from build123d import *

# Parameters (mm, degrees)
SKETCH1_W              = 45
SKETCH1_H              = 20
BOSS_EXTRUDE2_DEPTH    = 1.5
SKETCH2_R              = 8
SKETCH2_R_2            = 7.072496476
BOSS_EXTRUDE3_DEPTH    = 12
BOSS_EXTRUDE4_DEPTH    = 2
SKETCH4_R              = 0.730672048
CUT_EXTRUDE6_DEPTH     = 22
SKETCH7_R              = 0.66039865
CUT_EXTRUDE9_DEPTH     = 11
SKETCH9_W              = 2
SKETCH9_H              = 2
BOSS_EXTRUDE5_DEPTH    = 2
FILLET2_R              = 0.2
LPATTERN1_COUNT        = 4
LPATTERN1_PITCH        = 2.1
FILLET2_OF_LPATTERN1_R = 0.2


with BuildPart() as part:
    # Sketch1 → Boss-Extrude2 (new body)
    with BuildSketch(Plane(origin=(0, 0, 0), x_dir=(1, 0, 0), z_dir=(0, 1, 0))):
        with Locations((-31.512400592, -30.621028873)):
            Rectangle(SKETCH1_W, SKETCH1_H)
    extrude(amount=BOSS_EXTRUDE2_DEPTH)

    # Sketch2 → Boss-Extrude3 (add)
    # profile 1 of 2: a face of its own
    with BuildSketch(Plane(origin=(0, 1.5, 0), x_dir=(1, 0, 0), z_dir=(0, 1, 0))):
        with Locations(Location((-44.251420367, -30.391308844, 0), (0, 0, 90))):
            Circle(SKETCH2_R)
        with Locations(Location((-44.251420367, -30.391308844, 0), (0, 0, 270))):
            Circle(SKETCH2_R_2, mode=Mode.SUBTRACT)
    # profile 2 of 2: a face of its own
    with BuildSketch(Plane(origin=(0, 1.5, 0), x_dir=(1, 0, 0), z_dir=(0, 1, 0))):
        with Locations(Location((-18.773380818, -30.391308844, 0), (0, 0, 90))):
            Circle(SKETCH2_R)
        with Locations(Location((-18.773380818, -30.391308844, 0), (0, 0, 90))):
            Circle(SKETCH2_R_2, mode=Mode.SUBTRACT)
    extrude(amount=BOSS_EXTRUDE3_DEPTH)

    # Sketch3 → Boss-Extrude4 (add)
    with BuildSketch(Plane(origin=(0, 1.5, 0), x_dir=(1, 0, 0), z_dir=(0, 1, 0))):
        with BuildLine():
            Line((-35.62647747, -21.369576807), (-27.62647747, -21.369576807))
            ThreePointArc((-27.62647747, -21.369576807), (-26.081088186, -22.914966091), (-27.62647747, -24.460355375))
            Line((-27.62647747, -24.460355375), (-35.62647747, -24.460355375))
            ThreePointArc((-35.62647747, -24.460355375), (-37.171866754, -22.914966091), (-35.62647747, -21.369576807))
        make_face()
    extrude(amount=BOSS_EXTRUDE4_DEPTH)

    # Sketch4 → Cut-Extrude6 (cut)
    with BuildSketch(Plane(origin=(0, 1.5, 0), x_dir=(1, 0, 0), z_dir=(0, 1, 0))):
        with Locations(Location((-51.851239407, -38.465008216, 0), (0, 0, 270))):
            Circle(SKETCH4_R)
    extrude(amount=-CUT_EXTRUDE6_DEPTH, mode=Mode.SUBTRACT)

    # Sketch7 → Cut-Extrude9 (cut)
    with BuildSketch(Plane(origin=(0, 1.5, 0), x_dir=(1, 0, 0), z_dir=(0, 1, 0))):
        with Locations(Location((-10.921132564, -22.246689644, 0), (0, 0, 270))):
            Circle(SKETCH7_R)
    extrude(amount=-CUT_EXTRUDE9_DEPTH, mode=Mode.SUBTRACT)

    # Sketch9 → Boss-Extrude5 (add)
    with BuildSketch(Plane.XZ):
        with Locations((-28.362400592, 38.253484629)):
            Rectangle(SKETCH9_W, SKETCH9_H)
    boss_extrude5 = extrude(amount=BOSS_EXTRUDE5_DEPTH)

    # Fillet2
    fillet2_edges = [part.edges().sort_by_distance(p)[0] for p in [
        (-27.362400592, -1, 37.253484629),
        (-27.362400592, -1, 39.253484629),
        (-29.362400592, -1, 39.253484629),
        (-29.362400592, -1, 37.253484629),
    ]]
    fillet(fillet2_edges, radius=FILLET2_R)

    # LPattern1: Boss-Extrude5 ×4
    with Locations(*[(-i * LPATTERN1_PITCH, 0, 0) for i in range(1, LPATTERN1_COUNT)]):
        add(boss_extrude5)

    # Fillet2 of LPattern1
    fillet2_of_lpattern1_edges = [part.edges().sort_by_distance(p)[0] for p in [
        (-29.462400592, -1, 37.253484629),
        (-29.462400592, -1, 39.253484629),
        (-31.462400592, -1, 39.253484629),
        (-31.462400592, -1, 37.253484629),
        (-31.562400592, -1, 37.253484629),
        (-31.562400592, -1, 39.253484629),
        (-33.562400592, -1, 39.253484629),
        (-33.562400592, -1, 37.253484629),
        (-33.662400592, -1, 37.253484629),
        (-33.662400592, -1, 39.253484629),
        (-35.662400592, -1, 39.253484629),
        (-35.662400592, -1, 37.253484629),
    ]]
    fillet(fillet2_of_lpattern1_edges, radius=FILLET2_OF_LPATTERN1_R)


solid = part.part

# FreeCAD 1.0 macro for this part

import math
import FreeCAD as App
import Part
import Sketcher
Q = App.Units.Quantity


def edges_at(feature, points):
    """Names of the edges that pass closest to the given points."""
    edges = feature.Shape.Edges
    near = lambda p: min(range(len(edges)), key=lambda i: edges[i].distToShape(Part.Vertex(*p))[0])
    return sorted({f"Edge{near(p) + 1}" for p in points})


def add_polygon(sketch, points):
    """Adds a closed chain of lines whose ends are joined by coincident constraints."""
    first, n = sketch.GeometryCount, len(points)
    for a, b in zip(points, points[1:] + points[:1]):
        sketch.addGeometry(Part.LineSegment(App.Vector(*a, 0), App.Vector(*b, 0)), False)
    for i in range(n):
        sketch.addConstraint(Sketcher.Constraint("Coincident", first + i, 2, first + (i + 1) % n, 1))

doc = App.newDocument("Part")
params = doc.addObject("Spreadsheet::Sheet", "Params")
for row, (alias, value) in enumerate([
    ("sketch1_width", "45 mm"),
    ("sketch1_height", "20 mm"),
    ("pad1_length", "1.5 mm"),
    ("sketch2_diameter", "16 mm"),
    ("pad2_length", "12 mm"),
    ("sketch3_width", "8 mm"),
    ("pad3_length", "2 mm"),
    ("pocket1_length", "22 mm"),
    ("pocket2_length", "11 mm"),
    ("sketch6_width", "2 mm"),
    ("pad4_length", "2 mm"),
    ("fillet_radius", "0.2 mm"),
    ("linearpattern_pitch", "2.1 mm"),
    ("fillet2_radius", "0.2 mm"),
], start=1):
    params.set(f"A{row}", alias)
    params.set(f"B{row}", "=" + value)
    params.setAlias(f"B{row}", alias)

body = doc.addObject("PartDesign::Body", "Body")

# Sketch on XZ plane
sketch1 = body.newObject("Sketcher::SketchObject", "Sketch")
sketch1.AttachmentSupport = (doc.getObject("XZ_Plane"), [""])
sketch1.MapMode = "FlatFace"
add_polygon(sketch1, [(-54, 21), (-54, 41), (-9, 41), (-9, 21)])  # lines 0-3
sketch1.addConstraint([
    Sketcher.Constraint("Vertical", 0),
    Sketcher.Constraint("Horizontal", 1),
    Sketcher.Constraint("Vertical", 2),
    Sketcher.Constraint("Horizontal", 3),
    Sketcher.Constraint("DistanceX", 1, 1, 1, 2, Q("45 mm")),
    Sketcher.Constraint("DistanceY", 0, 1, 0, 2, Q("20 mm")),
    Sketcher.Constraint("DistanceX", 0, 2, -1, 1, Q("54.012401 mm")),
    Sketcher.Constraint("DistanceY", -1, 1, 0, 2, Q("40.621029 mm")),
])
sketch1.setExpression("Constraints[8]", "Params.sketch1_width")
sketch1.setExpression("Constraints[9]", "Params.sketch1_height")
pad1 = body.newObject("PartDesign::Pad", "Pad")
pad1.Profile = sketch1
pad1.setExpression("Length", "Params.pad1_length")
pad1.Reversed = True

# Sketch on XZ plane
sketch2 = body.newObject("Sketcher::SketchObject", "Sketch001")
sketch2.AttachmentSupport = (doc.getObject("XZ_Plane"), [""])
sketch2.MapMode = "FlatFace"
sketch2.AttachmentOffset = App.Placement(App.Vector(0, 0, -1.5), App.Rotation())
sketch2.addGeometry([
    Part.Circle(App.Vector(-44, 30, 0), App.Vector(0, 0, 1), 8),
    Part.Circle(App.Vector(-44, 30, 0), App.Vector(0, 0, 1), 7),
    Part.Circle(App.Vector(-19, 30, 0), App.Vector(0, 0, 1), 8),
    Part.Circle(App.Vector(-19, 30, 0), App.Vector(0, 0, 1), 7),
], False)
sketch2.addConstraint([
    Sketcher.Constraint("Coincident", 1, 3, 0, 3),
    Sketcher.Constraint("Coincident", 3, 3, 2, 3),
    Sketcher.Constraint("Equal", 0, 2),
    Sketcher.Constraint("Equal", 1, 3),
    Sketcher.Constraint("Horizontal", 1, 3, 2, 3),
    Sketcher.Constraint("Diameter", 0, Q("16 mm")),
    Sketcher.Constraint("Diameter", 1, Q("14.144993 mm")),
    Sketcher.Constraint("DistanceX", 0, 3, -1, 1, Q("44.25142 mm")),
    Sketcher.Constraint("DistanceY", -1, 1, 0, 3, Q("30.391309 mm")),
    Sketcher.Constraint("DistanceX", 2, 3, -1, 1, Q("18.773381 mm")),
])
sketch2.setExpression("Constraints[5]", "Params.sketch2_diameter")
pad2 = body.newObject("PartDesign::Pad", "Pad001")
pad2.Profile = sketch2
pad2.setExpression("Length", "Params.pad2_length")
pad2.Reversed = True

# Sketch on XZ plane
sketch3 = body.newObject("Sketcher::SketchObject", "Sketch002")
sketch3.AttachmentSupport = (doc.getObject("XZ_Plane"), [""])
sketch3.MapMode = "FlatFace"
sketch3.AttachmentOffset = App.Placement(App.Vector(0, 0, -1.5), App.Rotation())
sketch3.addGeometry([
    Part.LineSegment(App.Vector(-27.6, 21.4, 0), App.Vector(-35.6, 21.4, 0)),
    Part.ArcOfCircle(Part.Circle(App.Vector(-35.6, 22.9, 0), App.Vector(0, 0, 1), 1.5), math.radians(90), math.radians(270)),
    Part.LineSegment(App.Vector(-35.6, 24.5, 0), App.Vector(-27.6, 24.5, 0)),
    Part.ArcOfCircle(Part.Circle(App.Vector(-27.6, 22.9, 0), App.Vector(0, 0, 1), 1.5), math.radians(-90), math.radians(90)),
], False)
sketch3.addConstraint([
    Sketcher.Constraint("Tangent", 0, 2, 1, 2),
    Sketcher.Constraint("Tangent", 1, 1, 2, 1),
    Sketcher.Constraint("Tangent", 2, 2, 3, 2),
    Sketcher.Constraint("Tangent", 3, 1, 0, 1),
    Sketcher.Constraint("Horizontal", 0),
    Sketcher.Constraint("Horizontal", 2),
    Sketcher.Constraint("DistanceX", 0, 2, 0, 1, Q("8 mm")),
    Sketcher.Constraint("Radius", 1, Q("1.545389 mm")),
    Sketcher.Constraint("DistanceX", 1, 3, -1, 1, Q("35.626477 mm")),
    Sketcher.Constraint("DistanceY", -1, 1, 1, 3, Q("22.914966 mm")),
])
sketch3.setExpression("Constraints[6]", "Params.sketch3_width")
pad3 = body.newObject("PartDesign::Pad", "Pad002")
pad3.Profile = sketch3
pad3.setExpression("Length", "Params.pad3_length")
pad3.Reversed = True

# Sketch on XZ plane
sketch4 = body.newObject("Sketcher::SketchObject", "Sketch003")
sketch4.AttachmentSupport = (doc.getObject("XZ_Plane"), [""])
sketch4.MapMode = "FlatFace"
sketch4.AttachmentOffset = App.Placement(App.Vector(0, 0, -1.5), App.Rotation())
sketch4.addGeometry(Part.Circle(App.Vector(-51.9, 38.5, 0), App.Vector(0, 0, 1), 0.7), False)
sketch4.addConstraint([
    Sketcher.Constraint("Diameter", 0, Q("1.461344 mm")),
    Sketcher.Constraint("DistanceX", 0, 3, -1, 1, Q("51.851239 mm")),
    Sketcher.Constraint("DistanceY", -1, 1, 0, 3, Q("38.465008 mm")),
])
pocket1 = body.newObject("PartDesign::Pocket", "Pocket")
pocket1.Profile = sketch4
pocket1.setExpression("Length", "Params.pocket1_length")
pocket1.Reversed = True

# Sketch on XZ plane
sketch5 = body.newObject("Sketcher::SketchObject", "Sketch004")
sketch5.AttachmentSupport = (doc.getObject("XZ_Plane"), [""])
sketch5.MapMode = "FlatFace"
sketch5.AttachmentOffset = App.Placement(App.Vector(0, 0, -1.5), App.Rotation())
sketch5.addGeometry(Part.Circle(App.Vector(-10.9, 22.2, 0), App.Vector(0, 0, 1), 0.7), False)
sketch5.addConstraint([
    Sketcher.Constraint("Diameter", 0, Q("1.320797 mm")),
    Sketcher.Constraint("DistanceY", -1, 1, 0, 3, Q("22.24669 mm")),
    Sketcher.Constraint("DistanceX", 0, 3, -1, 1, Q("10.921133 mm")),
])
pocket2 = body.newObject("PartDesign::Pocket", "Pocket001")
pocket2.Profile = sketch5
pocket2.setExpression("Length", "Params.pocket2_length")
pocket2.Reversed = True

# Sketch on XZ plane
sketch6 = body.newObject("Sketcher::SketchObject", "Sketch005")
sketch6.AttachmentSupport = (doc.getObject("XZ_Plane"), [""])
sketch6.MapMode = "FlatFace"
add_polygon(sketch6, [(-29.4, 39.3), (-29.4, 37.3), (-27.4, 37.3), (-27.4, 39.3)])  # lines 0-3
sketch6.addConstraint([
    Sketcher.Constraint("Vertical", 0),
    Sketcher.Constraint("Horizontal", 1),
    Sketcher.Constraint("Vertical", 2),
    Sketcher.Constraint("Horizontal", 3),
    Sketcher.Constraint("Equal", 3, 0),
    Sketcher.Constraint("DistanceX", 1, 1, 1, 2, Q("2 mm")),
    Sketcher.Constraint("DistanceX", 0, 2, -1, 1, Q("29.362401 mm")),
    Sketcher.Constraint("DistanceY", -1, 1, 0, 2, Q("37.253485 mm")),
])
sketch6.setExpression("Constraints[9]", "Params.sketch6_width")
pad4 = body.newObject("PartDesign::Pad", "Pad003")
pad4.Profile = sketch6
pad4.setExpression("Length", "Params.pad4_length")
doc.recompute()

fillet = body.newObject("PartDesign::Fillet", "Fillet")
fillet.Base = (pad4, edges_at(pad4, [
    (-27.362, -1, 37.253),
    (-27.362, -1, 39.253),
    (-29.362, -1, 39.253),
    (-29.362, -1, 37.253),
]))
fillet.setExpression("Radius", "Params.fillet_radius")
doc.recompute()

linearpattern = body.newObject("PartDesign::LinearPattern", "LinearPattern")
linearpattern.Originals = [pad4]
linearpattern.Direction = (doc.getObject("X_Axis"), [""])
linearpattern.Mode = "offset"
linearpattern.setExpression("Offset", "Params.linearpattern_pitch")
linearpattern.Occurrences = 4
linearpattern.Reversed = True
body.Tip = linearpattern
doc.recompute()

fillet2 = body.newObject("PartDesign::Fillet", "Fillet001")
fillet2.Base = (linearpattern, edges_at(linearpattern, [
    (-29.462, -1, 37.253),
    (-29.462, -1, 39.253),
    (-31.462, -1, 39.253),
    (-31.462, -1, 37.253),
    (-31.562, -1, 37.253),
    (-31.562, -1, 39.253),
    (-33.562, -1, 39.253),
    (-33.562, -1, 37.253),
    (-33.662, -1, 37.253),
    (-33.662, -1, 39.253),
    (-35.662, -1, 39.253),
    (-35.662, -1, 37.253),
]))
fillet2.setExpression("Radius", "Params.fillet2_radius")

doc.recompute()
